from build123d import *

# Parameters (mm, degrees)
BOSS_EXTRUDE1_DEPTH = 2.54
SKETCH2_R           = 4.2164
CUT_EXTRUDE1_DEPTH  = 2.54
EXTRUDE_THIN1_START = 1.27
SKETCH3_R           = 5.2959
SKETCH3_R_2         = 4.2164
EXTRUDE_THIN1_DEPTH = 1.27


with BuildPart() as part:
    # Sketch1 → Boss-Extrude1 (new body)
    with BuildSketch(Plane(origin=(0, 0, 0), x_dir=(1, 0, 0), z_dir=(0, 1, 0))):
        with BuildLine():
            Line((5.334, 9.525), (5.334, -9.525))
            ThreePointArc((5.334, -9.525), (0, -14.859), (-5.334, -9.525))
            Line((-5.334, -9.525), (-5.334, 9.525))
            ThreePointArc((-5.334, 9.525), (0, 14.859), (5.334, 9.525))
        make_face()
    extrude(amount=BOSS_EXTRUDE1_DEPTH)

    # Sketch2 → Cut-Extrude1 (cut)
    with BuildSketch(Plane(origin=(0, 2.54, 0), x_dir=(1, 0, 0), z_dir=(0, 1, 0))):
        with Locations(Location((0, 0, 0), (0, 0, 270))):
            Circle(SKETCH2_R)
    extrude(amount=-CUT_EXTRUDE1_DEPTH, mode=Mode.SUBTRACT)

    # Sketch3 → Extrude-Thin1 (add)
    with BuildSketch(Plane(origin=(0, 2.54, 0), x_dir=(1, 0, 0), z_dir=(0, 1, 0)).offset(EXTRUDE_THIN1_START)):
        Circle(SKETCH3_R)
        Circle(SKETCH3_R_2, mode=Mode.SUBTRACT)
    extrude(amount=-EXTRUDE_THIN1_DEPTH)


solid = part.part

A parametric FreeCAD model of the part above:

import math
import FreeCAD as App
import Part
import Sketcher
Q = App.Units.Quantity

doc = App.newDocument("Part")
body = doc.addObject("PartDesign::Body", "Body")

# Sketch on XZ plane
sketch1 = body.newObject("Sketcher::SketchObject", "Sketch")
sketch1.AttachmentSupport = (doc.getObject("XZ_Plane"), [""])
sketch1.MapMode = "FlatFace"
sketch1.addGeometry(Part.LineSegment(App.Vector(5, 10, 0), App.Vector(5, -10, 0)), False)
sketch1.addGeometry(Part.ArcOfCircle(Part.Circle(App.Vector(0, -10, 0), App.Vector(0, 0, 1), 5), math.radians(180), math.radians(360)), False)
sketch1.addGeometry(Part.LineSegment(App.Vector(-5, -10, 0), App.Vector(-5, 10, 0)), False)
sketch1.addGeometry(Part.ArcOfCircle(Part.Circle(App.Vector(0, 10, 0), App.Vector(0, 0, 1), 5), math.radians(0), math.radians(180)), False)
sketch1.addConstraint(Sketcher.Constraint("Tangent", 0, 2, 1, 2))
sketch1.addConstraint(Sketcher.Constraint("Tangent", 1, 1, 2, 1))
sketch1.addConstraint(Sketcher.Constraint("Tangent", 2, 2, 3, 2))
sketch1.addConstraint(Sketcher.Constraint("Tangent", 3, 1, 0, 1))
sketch1.addConstraint(Sketcher.Constraint("Vertical", 0))
sketch1.addConstraint(Sketcher.Constraint("Vertical", 2))
sketch1.addConstraint(Sketcher.Constraint("Symmetric", 1, 3, 3, 3, -1, 1))
sketch1.addConstraint(Sketcher.Constraint("Radius", 1, Q("0.21 in")))
sketch1.addConstraint(Sketcher.Constraint("DistanceY", 0, 2, 0, 1, Q("0.75 in")))
pad1 = body.newObject("PartDesign::Pad", "Pad")
pad1.Profile = sketch1
pad1.Length = Q("0.1 in")
pad1.Reversed = True

# Sketch on XZ plane
sketch2 = body.newObject("Sketcher::SketchObject", "Sketch001")
sketch2.AttachmentSupport = (doc.getObject("XZ_Plane"), [""])
sketch2.MapMode = "FlatFace"
sketch2.AttachmentOffset = App.Placement(App.Vector(0, 0, -0.1 * 25.4), App.Rotation())
sketch2.addGeometry(Part.Circle(App.Vector(0, 0, 0), App.Vector(0, 0, 1), 4.2), False)
sketch2.addConstraint(Sketcher.Constraint("Coincident", 0, 3, -1, 1))
sketch2.addConstraint(Sketcher.Constraint("Diameter", 0, Q("0.332 in")))
pocket1 = body.newObject("PartDesign::Pocket", "Pocket")
pocket1.Profile = sketch2
pocket1.Length = Q("0.1 in")
pocket1.Reversed = True

# Sketch on XZ plane
sketch3 = body.newObject("Sketcher::SketchObject", "Sketch002")
sketch3.AttachmentSupport = (doc.getObject("XZ_Plane"), [""])
sketch3.MapMode = "FlatFace"
sketch3.AttachmentOffset = App.Placement(App.Vector(0, 0, -0.15 * 25.4), App.Rotation())
sketch3.addGeometry(Part.Circle(App.Vector(0, 0, 0), App.Vector(0, 0, 1), 5.3), False)
sketch3.addGeometry(Part.Circle(App.Vector(0, 0, 0), App.Vector(0, 0, 1), 4.2), False)
sketch3.addConstraint(Sketcher.Constraint("Coincident", 0, 3, -1, 1))
sketch3.addConstraint(Sketcher.Constraint("Coincident", 1, 3, -1, 1))
sketch3.addConstraint(Sketcher.Constraint("Diameter", 0, Q("0.417 in")))
sketch3.addConstraint(Sketcher.Constraint("Diameter", 1, Q("0.332 in")))
pad2 = body.newObject("PartDesign::Pad", "Pad001")
pad2.Profile = sketch3
pad2.Length = Q("0.05 in")

doc.recompute()
